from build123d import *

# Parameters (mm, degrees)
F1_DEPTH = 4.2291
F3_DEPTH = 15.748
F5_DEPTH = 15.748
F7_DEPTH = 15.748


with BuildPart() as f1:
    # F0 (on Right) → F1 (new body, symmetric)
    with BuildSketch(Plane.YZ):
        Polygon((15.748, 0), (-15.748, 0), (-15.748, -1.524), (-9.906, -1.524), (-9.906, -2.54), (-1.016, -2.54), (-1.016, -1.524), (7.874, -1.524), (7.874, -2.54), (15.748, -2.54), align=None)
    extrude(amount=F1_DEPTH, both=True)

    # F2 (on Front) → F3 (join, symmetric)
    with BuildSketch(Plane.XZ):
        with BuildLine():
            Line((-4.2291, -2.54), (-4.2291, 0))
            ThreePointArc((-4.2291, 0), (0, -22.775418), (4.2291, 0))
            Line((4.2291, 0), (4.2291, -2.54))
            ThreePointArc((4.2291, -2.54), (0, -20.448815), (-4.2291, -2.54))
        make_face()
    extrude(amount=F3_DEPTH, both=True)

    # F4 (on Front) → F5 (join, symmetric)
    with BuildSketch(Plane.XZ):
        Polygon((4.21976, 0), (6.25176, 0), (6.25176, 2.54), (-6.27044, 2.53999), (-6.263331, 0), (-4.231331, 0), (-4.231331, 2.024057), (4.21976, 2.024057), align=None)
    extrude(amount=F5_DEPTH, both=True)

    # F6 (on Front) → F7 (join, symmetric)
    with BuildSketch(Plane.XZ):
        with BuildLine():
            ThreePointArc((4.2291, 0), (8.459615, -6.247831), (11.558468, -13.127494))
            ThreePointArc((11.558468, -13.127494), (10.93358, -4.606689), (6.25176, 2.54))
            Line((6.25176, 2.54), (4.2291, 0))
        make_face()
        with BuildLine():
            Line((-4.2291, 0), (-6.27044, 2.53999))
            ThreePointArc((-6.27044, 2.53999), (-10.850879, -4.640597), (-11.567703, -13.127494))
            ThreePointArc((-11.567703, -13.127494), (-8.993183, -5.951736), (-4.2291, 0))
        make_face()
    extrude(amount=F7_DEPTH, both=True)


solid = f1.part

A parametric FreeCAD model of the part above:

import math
import FreeCAD as App
import Part
import Sketcher

V = App.Vector
Q = App.Units.Quantity

doc = App.newDocument("Part")
params = doc.addObject("Spreadsheet::Sheet", "Params")
for row, (alias, value) in enumerate([
    ("sketch1_height", "0.1 in"),
    ("sketch1_width", "1.24 in"),
    ("sketch1_width2", "0.23 in"),
    ("sketch1_width3", "0.35 in"),
    ("sketch1_height2", "0.06 in"),
    ("pad1_length", "0.333 in"),
    ("sketch2_height", "0.1 in"),
    ("pad2_length", "1.24 in"),
    ("sketch3_height", "0.1 in"),
    ("sketch3_length", "0.1 in"),
    ("sketch3_width", "0.08 in"),
    ("sketch3_length2", "0.493 in"),
    ("pad3_length", "1.24 in"),
    ("pad4_length", "1.24 in"),
], start=1):
    params.set(f"A{row}", alias)
    params.set(f"B{row}", "=" + value)
    params.setAlias(f"B{row}", alias)

body = doc.addObject("PartDesign::Body", "Body")

# Sketch on YZ plane
sketch1 = body.newObject("Sketcher::SketchObject", "Sketch")
sketch1.AttachmentSupport = (doc.getObject("YZ_Plane"), [""])
sketch1.MapMode = "FlatFace"
sketch1.addGeometry(Part.LineSegment(V(15.7, 0, 0), V(-15.7, 0, 0)), False)
sketch1.addGeometry(Part.LineSegment(V(-15.7, 0, 0), V(-15.7, -1.5, 0)), False)
sketch1.addGeometry(Part.LineSegment(V(-15.7, -1.5, 0), V(-9.9, -1.5, 0)), False)
sketch1.addGeometry(Part.LineSegment(V(-9.9, -1.5, 0), V(-9.9, -2.5, 0)), False)
sketch1.addGeometry(Part.LineSegment(V(-9.9, -2.5, 0), V(-1, -2.5, 0)), False)
sketch1.addGeometry(Part.LineSegment(V(-1, -2.5, 0), V(-1, -1.5, 0)), False)
sketch1.addGeometry(Part.LineSegment(V(-1, -1.5, 0), V(7.9, -1.5, 0)), False)
sketch1.addGeometry(Part.LineSegment(V(7.9, -1.5, 0), V(7.9, -2.5, 0)), False)
sketch1.addGeometry(Part.LineSegment(V(7.9, -2.5, 0), V(15.7, -2.5, 0)), False)
sketch1.addGeometry(Part.LineSegment(V(15.7, -2.5, 0), V(15.7, 0, 0)), False)
sketch1.addConstraint(Sketcher.Constraint("Coincident", 0, 2, 1, 1))
sketch1.addConstraint(Sketcher.Constraint("Coincident", 1, 2, 2, 1))
sketch1.addConstraint(Sketcher.Constraint("Coincident", 2, 2, 3, 1))
sketch1.addConstraint(Sketcher.Constraint("Coincident", 3, 2, 4, 1))
sketch1.addConstraint(Sketcher.Constraint("Coincident", 4, 2, 5, 1))
sketch1.addConstraint(Sketcher.Constraint("Coincident", 5, 2, 6, 1))
sketch1.addConstraint(Sketcher.Constraint("Coincident", 6, 2, 7, 1))
sketch1.addConstraint(Sketcher.Constraint("Coincident", 7, 2, 8, 1))
sketch1.addConstraint(Sketcher.Constraint("Coincident", 8, 2, 9, 1))
sketch1.addConstraint(Sketcher.Constraint("Coincident", 9, 2, 0, 1))
sketch1.addConstraint(Sketcher.Constraint("Horizontal", 0))
sketch1.addConstraint(Sketcher.Constraint("Vertical", 1))
sketch1.addConstraint(Sketcher.Constraint("Horizontal", 2))
sketch1.addConstraint(Sketcher.Constraint("Vertical", 3))
sketch1.addConstraint(Sketcher.Constraint("Horizontal", 4))
sketch1.addConstraint(Sketcher.Constraint("Vertical", 5))
sketch1.addConstraint(Sketcher.Constraint("Horizontal", 6))
sketch1.addConstraint(Sketcher.Constraint("Vertical", 7))
sketch1.addConstraint(Sketcher.Constraint("Horizontal", 8))
sketch1.addConstraint(Sketcher.Constraint("Vertical", 9))
sketch1.addConstraint(Sketcher.Constraint("Symmetric", 0, 2, 9, 2, -1, 1))
sketch1.addConstraint(Sketcher.Constraint("Horizontal", 2, 2, 5, 2))
sketch1.addConstraint(Sketcher.Constraint("Horizontal", 4, 2, 7, 2))
sketch1.addConstraint(Sketcher.Constraint("Equal", 4, 6))
sketch1.addConstraint(Sketcher.Constraint("DistanceY", 9, 1, 9, 2, Q("0.1 in")))
sketch1.addConstraint(Sketcher.Constraint("DistanceX", 0, 2, 0, 1, Q("1.24 in")))
sketch1.addConstraint(Sketcher.Constraint("DistanceX", 2, 1, 2, 2, Q("0.23 in")))
sketch1.addConstraint(Sketcher.Constraint("DistanceX", 4, 1, 4, 2, Q("0.35 in")))
sketch1.addConstraint(Sketcher.Constraint("DistanceY", 1, 2, 1, 1, Q("0.06 in")))
sketch1.setExpression("Constraints[24]", "Params.sketch1_height")
sketch1.setExpression("Constraints[25]", "Params.sketch1_width")
sketch1.setExpression("Constraints[26]", "Params.sketch1_width2")
sketch1.setExpression("Constraints[27]", "Params.sketch1_width3")
sketch1.setExpression("Constraints[28]", "Params.sketch1_height2")
pad1 = body.newObject("PartDesign::Pad", "Pad")
pad1.Profile = sketch1
pad1.setExpression("Length", "Params.pad1_length")
pad1.Midplane = True

# Sketch on XZ plane
sketch2 = body.newObject("Sketcher::SketchObject", "Sketch001")
sketch2.AttachmentSupport = (doc.getObject("XZ_Plane"), [""])
sketch2.MapMode = "FlatFace"
sketch2.addGeometry(Part.LineSegment(V(-4.2, -2.5, 0), V(-4.2, 0, 0)), False)
sketch2.addGeometry(Part.ArcOfCircle(Part.Circle(V(0, -11, 0), V(0, 0, 1), 11.8), math.radians(111), math.radians(429)), False)
sketch2.addGeometry(Part.LineSegment(V(4.2, 0, 0), V(4.2, -2.5, 0)), False)
sketch2.addGeometry(Part.ArcOfCircle(Part.Circle(V(0, -11, 0), V(0, 0, 1), 9.5), math.radians(117), math.radians(423)), False)
sketch2.addConstraint(Sketcher.Constraint("Coincident", 0, 2, 1, 1))
sketch2.addConstraint(Sketcher.Constraint("Coincident", 1, 2, 2, 1))
sketch2.addConstraint(Sketcher.Constraint("Coincident", 2, 2, 3, 2))
sketch2.addConstraint(Sketcher.Constraint("Coincident", 3, 1, 0, 1))
sketch2.addConstraint(Sketcher.Constraint("Vertical", 0))
sketch2.addConstraint(Sketcher.Constraint("Vertical", 2))
sketch2.addConstraint(Sketcher.Constraint("Coincident", 3, 3, 1, 3))
sketch2.addConstraint(Sketcher.Constraint("Symmetric", 0, 2, 1, 2, -1, 1))
sketch2.addConstraint(Sketcher.Constraint("PointOnObject", 1, 3, -2))
sketch2.addConstraint(Sketcher.Constraint("DistanceY", 0, 1, 0, 2, Q("0.1 in")))
sketch2.addConstraint(Sketcher.Constraint("Radius", 3, 9.453751))
sketch2.addConstraint(Sketcher.Constraint("DistanceX", 0, 2, 1, 2, Q("0.333 in")))
sketch2.setExpression("Constraints[9]", "Params.sketch2_height")
pad2 = body.newObject("PartDesign::Pad", "Pad001")
pad2.Profile = sketch2
pad2.setExpression("Length", "Params.pad2_length")
pad2.Midplane = True

# Sketch on XZ plane
sketch3 = body.newObject("Sketcher::SketchObject", "Sketch002")
sketch3.AttachmentSupport = (doc.getObject("XZ_Plane"), [""])
sketch3.MapMode = "FlatFace"
sketch3.addGeometry(Part.LineSegment(V(4.2, 0, 0), V(6.3, 0, 0)), False)
sketch3.addGeometry(Part.LineSegment(V(6.3, 0, 0), V(6.3, 2.5, 0)), False)
sketch3.addGeometry(Part.LineSegment(V(6.3, 2.5, 0), V(-6.3, 2.5, 0)), False)
sketch3.addGeometry(Part.LineSegment(V(-6.3, 2.5, 0), V(-6.3, 0, 0)), False)
sketch3.addGeometry(Part.LineSegment(V(-6.3, 0, 0), V(-4.2, 0, 0)), False)
sketch3.addGeometry(Part.LineSegment(V(-4.2, 0, 0), V(-4.2, 2, 0)), False)
sketch3.addGeometry(Part.LineSegment(V(-4.2, 2, 0), V(4.2, 2, 0)), False)
sketch3.addGeometry(Part.LineSegment(V(4.2, 2, 0), V(4.2, 0, 0)), False)
sketch3.addConstraint(Sketcher.Constraint("Coincident", 0, 2, 1, 1))
sketch3.addConstraint(Sketcher.Constraint("Coincident", 1, 2, 2, 1))
sketch3.addConstraint(Sketcher.Constraint("Coincident", 2, 2, 3, 1))
sketch3.addConstraint(Sketcher.Constraint("Coincident", 3, 2, 4, 1))
sketch3.addConstraint(Sketcher.Constraint("Coincident", 4, 2, 5, 1))
sketch3.addConstraint(Sketcher.Constraint("Coincident", 5, 2, 6, 1))
sketch3.addConstraint(Sketcher.Constraint("Coincident", 6, 2, 7, 1))
sketch3.addConstraint(Sketcher.Constraint("Coincident", 7, 2, 0, 1))
sketch3.addConstraint(Sketcher.Constraint("Horizontal", 0))
sketch3.addConstraint(Sketcher.Constraint("Vertical", 1))
sketch3.addConstraint(Sketcher.Constraint("Horizontal", 4))
sketch3.addConstraint(Sketcher.Constraint("Vertical", 5))
sketch3.addConstraint(Sketcher.Constraint("Horizontal", 6))
sketch3.addConstraint(Sketcher.Constraint("Vertical", 7))
sketch3.addConstraint(Sketcher.Constraint("PointOnObject", 0, 2, -1))
sketch3.addConstraint(Sketcher.Constraint("PointOnObject", 3, 2, -1))
sketch3.addConstraint(Sketcher.Constraint("Equal", 0, 4))
sketch3.addConstraint(Sketcher.Constraint("DistanceY", 1, 1, 1, 2, Q("0.1 in")))
sketch3.addConstraint(Sketcher.Constraint("Distance", 3, Q("0.1 in")))
sketch3.addConstraint(Sketcher.Constraint("DistanceX", 0, 1, 0, 2, Q("0.08 in")))
sketch3.addConstraint(Sketcher.Constraint("Distance", 2, Q("0.493 in")))
sketch3.addConstraint(Sketcher.Constraint("DistanceX", 6, 1, 6, 2, 8.451091))
sketch3.addConstraint(Sketcher.Constraint("DistanceY", 5, 1, 5, 2, 2.024057))
sketch3.addConstraint(Sketcher.Constraint("DistanceX", -1, 1, 0, 2, 6.25176))
sketch3.setExpression("Constraints[17]", "Params.sketch3_height")
sketch3.setExpression("Constraints[18]", "Params.sketch3_length")
sketch3.setExpression("Constraints[19]", "Params.sketch3_width")
sketch3.setExpression("Constraints[20]", "Params.sketch3_length2")
pad3 = body.newObject("PartDesign::Pad", "Pad002")
pad3.Profile = sketch3
pad3.setExpression("Length", "Params.pad3_length")
pad3.Midplane = True

# Sketch on XZ plane
sketch4 = body.newObject("Sketcher::SketchObject", "Sketch003")
sketch4.AttachmentSupport = (doc.getObject("XZ_Plane"), [""])
sketch4.MapMode = "FlatFace"
sketch4.addGeometry(Part.ArcOfCircle(Part.Circle(V(-29.9, -27.7, 0), V(0, 0, 1), 43.9), math.radians(19.32), math.radians(39.03)), False)
sketch4.addGeometry(Part.ArcOfCircle(Part.Circle(V(-5.2, -10.1, 0), V(0, 0, 1), 17), math.radians(-10), math.radians(48)), False)
sketch4.addGeometry(Part.LineSegment(V(6.3, 2.5, 0), V(4.2, 0, 0)), False)
sketch4.addGeometry(Part.LineSegment(V(-4.2, 0, 0), V(-6.3, 2.5, 0)), False)
sketch4.addGeometry(Part.ArcOfCircle(Part.Circle(V(6, -10.3, 0), V(0, 0, 1), 17.8), math.radians(134), math.radians(189)), False)
sketch4.addGeometry(Part.ArcOfCircle(Part.Circle(V(11.2, -17.3, 0), V(0, 0, 1), 23.2), math.radians(132), math.radians(170)), False)
sketch4.addConstraint(Sketcher.Constraint("Coincident", 0, 1, 1, 1))
sketch4.addConstraint(Sketcher.Constraint("Coincident", 1, 2, 2, 1))
sketch4.addConstraint(Sketcher.Constraint("Coincident", 2, 2, 0, 2))
sketch4.addConstraint(Sketcher.Constraint("Coincident", 3, 2, 4, 1))
sketch4.addConstraint(Sketcher.Constraint("Coincident", 4, 2, 5, 2))
sketch4.addConstraint(Sketcher.Constraint("Coincident", 5, 1, 3, 1))
sketch4.addConstraint(Sketcher.Constraint("Symmetric", 2, 2, 5, 1, -1, 1))
sketch4.addConstraint(Sketcher.Constraint("PointOnObject", 2, 2, -1))
sketch4.addConstraint(Sketcher.Constraint("Horizontal", 0, 1, 4, 2))
sketch4.addConstraint(Sketcher.Constraint("DistanceY", -1, 1, 1, 2, Q("0.1 in")))
sketch4.addConstraint(Sketcher.Constraint("DistanceX", 3, 2, 1, 2, Q("0.493 in")))
sketch4.addConstraint(Sketcher.Constraint("DistanceX", 5, 1, 2, 2, Q("0.333 in")))
sketch4.addConstraint(Sketcher.Constraint("Radius", 0, 43.926186))
sketch4.addConstraint(Sketcher.Constraint("Radius", 1, 17.041566))
sketch4.addConstraint(Sketcher.Constraint("Radius", 4, 17.786363))
sketch4.addConstraint(Sketcher.Constraint("Radius", 5, 23.169374))
sketch4.addConstraint(Sketcher.Constraint("DistanceY", 0, 3, -1, 1, 27.661302))
sketch4.addConstraint(Sketcher.Constraint("DistanceX", 0, 3, 1, 3, 24.686398))
sketch4.addConstraint(Sketcher.Constraint("DistanceX", 4, 3, 0, 1, 5.559999))
sketch4.addConstraint(Sketcher.Constraint("Distance", 2, 3.246961))
sketch4.addConstraint(Sketcher.Constraint("DistanceX", -1, 1, 5, 3, 11.230632))
pad4 = body.newObject("PartDesign::Pad", "Pad003")
pad4.Profile = sketch4
pad4.setExpression("Length", "Params.pad4_length")
pad4.Midplane = True

doc.recompute()
